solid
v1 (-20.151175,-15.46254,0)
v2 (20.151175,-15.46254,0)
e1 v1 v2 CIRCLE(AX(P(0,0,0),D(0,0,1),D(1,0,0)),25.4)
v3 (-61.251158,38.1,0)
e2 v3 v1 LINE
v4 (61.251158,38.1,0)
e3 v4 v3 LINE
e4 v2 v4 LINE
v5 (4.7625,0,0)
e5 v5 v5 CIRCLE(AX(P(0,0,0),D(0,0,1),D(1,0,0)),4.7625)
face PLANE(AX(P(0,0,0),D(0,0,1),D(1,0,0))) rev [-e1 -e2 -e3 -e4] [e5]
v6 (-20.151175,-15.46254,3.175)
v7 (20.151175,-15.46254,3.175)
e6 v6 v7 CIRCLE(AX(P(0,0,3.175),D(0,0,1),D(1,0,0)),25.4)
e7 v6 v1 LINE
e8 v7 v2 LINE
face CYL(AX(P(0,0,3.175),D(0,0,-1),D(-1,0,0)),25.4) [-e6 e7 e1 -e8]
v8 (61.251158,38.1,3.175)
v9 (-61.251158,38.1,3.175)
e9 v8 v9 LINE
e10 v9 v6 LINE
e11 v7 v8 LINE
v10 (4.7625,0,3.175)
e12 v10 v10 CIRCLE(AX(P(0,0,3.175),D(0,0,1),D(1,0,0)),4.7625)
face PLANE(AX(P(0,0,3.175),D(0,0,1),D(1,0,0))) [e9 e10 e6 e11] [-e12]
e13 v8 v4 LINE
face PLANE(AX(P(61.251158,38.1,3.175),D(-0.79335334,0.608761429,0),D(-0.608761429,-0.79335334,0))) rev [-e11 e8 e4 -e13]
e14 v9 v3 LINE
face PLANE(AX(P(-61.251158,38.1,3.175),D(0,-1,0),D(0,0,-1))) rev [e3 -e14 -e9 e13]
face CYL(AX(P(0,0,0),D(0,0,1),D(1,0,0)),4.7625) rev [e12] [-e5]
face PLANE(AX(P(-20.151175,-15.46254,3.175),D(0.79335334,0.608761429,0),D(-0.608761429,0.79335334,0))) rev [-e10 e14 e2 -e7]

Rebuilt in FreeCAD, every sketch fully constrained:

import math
import FreeCAD as App
import Part
import Sketcher
Q = App.Units.Quantity

doc = App.newDocument("Part")
params = doc.addObject("Spreadsheet::Sheet", "Params")
for row, (alias, value) in enumerate([
    ("sketch1_radius", "1 in"),
    ("pad1_length", "0.125 in"),
    ("sketch2_diameter", "0.375 in"),
], start=1):
    params.set(f"A{row}", alias)
    params.set(f"B{row}", "=" + value)
    params.setAlias(f"B{row}", alias)

body = doc.addObject("PartDesign::Body", "Body")

# Sketch on XY plane
sketch1 = body.newObject("Sketcher::SketchObject", "Sketch")
sketch1.AttachmentSupport = (doc.getObject("XY_Plane"), [""])
sketch1.MapMode = "FlatFace"
sketch1.addGeometry(Part.LineSegment(App.Vector(-61.251158, 38.1, 0), App.Vector(-20.151175, -15.46254, 0)), False)
sketch1.addGeometry(Part.ArcOfCircle(Part.Circle(App.Vector(0, 0, 0), App.Vector(0, 0, 1), 25.4), math.radians(-142.5), math.radians(-37.5)), False)
sketch1.addGeometry(Part.LineSegment(App.Vector(20.151175, -15.46254, 0), App.Vector(61.251158, 38.1, 0)), False)
sketch1.addGeometry(Part.LineSegment(App.Vector(61.251158, 38.1, 0), App.Vector(-61.251158, 38.1, 0)), False)
sketch1.addConstraint(Sketcher.Constraint("Tangent", 0, 2, 1, 1))
sketch1.addConstraint(Sketcher.Constraint("Tangent", 1, 2, 2, 1))
sketch1.addConstraint(Sketcher.Constraint("Coincident", 2, 2, 3, 1))
sketch1.addConstraint(Sketcher.Constraint("Coincident", 3, 2, 0, 1))
sketch1.addConstraint(Sketcher.Constraint("Horizontal", 3))
sketch1.addConstraint(Sketcher.Constraint("Coincident", 1, 3, -1, 1))
sketch1.addConstraint(Sketcher.Constraint("Horizontal", 0, 2, 1, 2))
sketch1.addConstraint(Sketcher.Constraint("Radius", 1, Q("1 in")))
sketch1.addConstraint(Sketcher.Constraint("DistanceY", -1, 1, 2, 2, Q("1.5 in")))
sketch1.addConstraint(Sketcher.Constraint("Angle", 0, Q("-52.5 deg")))
sketch1.setExpression("Constraints[7]", "Params.sketch1_radius")
pad1 = body.newObject("PartDesign::Pad", "Pad")
pad1.Profile = sketch1
pad1.setExpression("Length", "Params.pad1_length")

# Sketch on XY plane
sketch2 = body.newObject("Sketcher::SketchObject", "Sketch001")
sketch2.AttachmentSupport = (doc.getObject("XY_Plane"), [""])
sketch2.MapMode = "FlatFace"
sketch2.AttachmentOffset = App.Placement(App.Vector(0, 0, 0.125 * 25.4), App.Rotation())
sketch2.addGeometry(Part.Circle(App.Vector(0, 0, 0), App.Vector(0, 0, 1), 4.7625), False)
sketch2.addConstraint(Sketcher.Constraint("Coincident", 0, 3, -1, 1))
sketch2.addConstraint(Sketcher.Constraint("Diameter", 0, Q("0.375 in")))
sketch2.setExpression("Constraints[1]", "Params.sketch2_diameter")
pocket1 = body.newObject("PartDesign::Pocket", "Pocket")
pocket1.Profile = sketch2
pocket1.Type = "ThroughAll"

doc.recompute()
